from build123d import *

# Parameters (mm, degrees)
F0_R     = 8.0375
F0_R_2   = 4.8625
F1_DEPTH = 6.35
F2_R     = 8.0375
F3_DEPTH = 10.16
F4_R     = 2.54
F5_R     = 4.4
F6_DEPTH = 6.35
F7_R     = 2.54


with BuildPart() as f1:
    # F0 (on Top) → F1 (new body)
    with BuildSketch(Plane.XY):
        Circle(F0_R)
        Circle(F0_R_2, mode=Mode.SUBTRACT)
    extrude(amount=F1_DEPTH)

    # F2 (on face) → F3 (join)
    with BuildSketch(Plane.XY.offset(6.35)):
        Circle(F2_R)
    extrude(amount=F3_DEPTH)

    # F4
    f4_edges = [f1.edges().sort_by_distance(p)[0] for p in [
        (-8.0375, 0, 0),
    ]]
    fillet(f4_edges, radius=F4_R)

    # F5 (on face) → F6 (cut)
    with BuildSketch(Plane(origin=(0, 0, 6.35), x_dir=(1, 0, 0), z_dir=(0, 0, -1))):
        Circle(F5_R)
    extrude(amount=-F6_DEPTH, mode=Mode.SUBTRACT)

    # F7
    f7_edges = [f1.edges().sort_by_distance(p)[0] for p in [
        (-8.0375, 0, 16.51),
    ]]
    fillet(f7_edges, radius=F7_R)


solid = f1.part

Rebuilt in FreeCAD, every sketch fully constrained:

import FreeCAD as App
import Part
import Sketcher

V = App.Vector
Q = App.Units.Quantity


def edges_at(feature, points):
    """Names of the edges that pass closest to the given points."""
    edges = feature.Shape.Edges
    near = lambda p: min(range(len(edges)), key=lambda i: edges[i].distToShape(Part.Vertex(*p))[0])
    return sorted({f"Edge{near(p) + 1}" for p in points})

doc = App.newDocument("Part")
body = doc.addObject("PartDesign::Body", "Body")

# Sketch on XY plane
sketch1 = doc.addObject("Sketcher::SketchObject", "Sketch")
body.addObject(sketch1)
sketch1.AttachmentSupport = (doc.XY_Plane, [""])
sketch1.MapMode = "FlatFace"
sketch1.addGeometry([
    Part.Circle(V(0, 0, 0), V(0, 0, 1), 8),
    Part.Circle(V(0, 0, 0), V(0, 0, 1), 4.9),
], False)
sketch1.addConstraint([
    Sketcher.Constraint("Coincident", 0, 3, -1, 1),
    Sketcher.Constraint("Coincident", 1, 3, -1, 1),
    Sketcher.Constraint("Diameter", 0, Q("16.075 mm")),
    Sketcher.Constraint("Diameter", 1, Q("9.725 mm")),
])
pad1 = doc.addObject("PartDesign::Pad", "Pad")
body.addObject(pad1)
pad1.Profile = sketch1
pad1.Length = Q("0.25 in")

# Sketch on XY plane
sketch2 = doc.addObject("Sketcher::SketchObject", "Sketch001")
body.addObject(sketch2)
sketch2.AttachmentSupport = (doc.XY_Plane, [""])
sketch2.MapMode = "FlatFace"
sketch2.AttachmentOffset = App.Placement(V(0, 0, 0.25 * 25.4), App.Rotation())
sketch2.addGeometry(Part.Circle(V(0, 0, 0), V(0, 0, 1), 8), False)
sketch2.addConstraint([
    Sketcher.Constraint("Coincident", 0, 3, -1, 1),
    Sketcher.Constraint("Diameter", 0, Q("16.075 mm")),
])
pad2 = doc.addObject("PartDesign::Pad", "Pad001")
body.addObject(pad2)
pad2.Profile = sketch2
pad2.Length = Q("0.4 in")
doc.recompute()

fillet = doc.addObject("PartDesign::Fillet", "Fillet")
body.addObject(fillet)
fillet.Base = (pad2, edges_at(pad2, [(-8.037, 0, 0)]))
fillet.Radius = Q("0.1 in")

# Sketch on XY plane
sketch3 = doc.addObject("Sketcher::SketchObject", "Sketch002")
body.addObject(sketch3)
sketch3.AttachmentSupport = (doc.XY_Plane, [""])
sketch3.MapMode = "FlatFace"
sketch3.AttachmentOffset = App.Placement(V(0, 0, 0.25 * 25.4), App.Rotation())
sketch3.addGeometry(Part.Circle(V(0, 0, 0), V(0, 0, 1), 4.4), False)
sketch3.addConstraint([
    Sketcher.Constraint("Coincident", 0, 3, -1, 1),
    Sketcher.Constraint("Diameter", 0, Q("8.8 mm")),
])
pocket1 = doc.addObject("PartDesign::Pocket", "Pocket")
body.addObject(pocket1)
pocket1.Profile = sketch3
pocket1.Length = Q("0.25 in")
pocket1.Reversed = True
doc.recompute()

fillet2 = doc.addObject("PartDesign::Fillet", "Fillet001")
body.addObject(fillet2)
fillet2.Base = (pocket1, edges_at(pocket1, [(-8.037, 0, 16.51)]))
fillet2.Radius = Q("0.1 in")

doc.recompute()
